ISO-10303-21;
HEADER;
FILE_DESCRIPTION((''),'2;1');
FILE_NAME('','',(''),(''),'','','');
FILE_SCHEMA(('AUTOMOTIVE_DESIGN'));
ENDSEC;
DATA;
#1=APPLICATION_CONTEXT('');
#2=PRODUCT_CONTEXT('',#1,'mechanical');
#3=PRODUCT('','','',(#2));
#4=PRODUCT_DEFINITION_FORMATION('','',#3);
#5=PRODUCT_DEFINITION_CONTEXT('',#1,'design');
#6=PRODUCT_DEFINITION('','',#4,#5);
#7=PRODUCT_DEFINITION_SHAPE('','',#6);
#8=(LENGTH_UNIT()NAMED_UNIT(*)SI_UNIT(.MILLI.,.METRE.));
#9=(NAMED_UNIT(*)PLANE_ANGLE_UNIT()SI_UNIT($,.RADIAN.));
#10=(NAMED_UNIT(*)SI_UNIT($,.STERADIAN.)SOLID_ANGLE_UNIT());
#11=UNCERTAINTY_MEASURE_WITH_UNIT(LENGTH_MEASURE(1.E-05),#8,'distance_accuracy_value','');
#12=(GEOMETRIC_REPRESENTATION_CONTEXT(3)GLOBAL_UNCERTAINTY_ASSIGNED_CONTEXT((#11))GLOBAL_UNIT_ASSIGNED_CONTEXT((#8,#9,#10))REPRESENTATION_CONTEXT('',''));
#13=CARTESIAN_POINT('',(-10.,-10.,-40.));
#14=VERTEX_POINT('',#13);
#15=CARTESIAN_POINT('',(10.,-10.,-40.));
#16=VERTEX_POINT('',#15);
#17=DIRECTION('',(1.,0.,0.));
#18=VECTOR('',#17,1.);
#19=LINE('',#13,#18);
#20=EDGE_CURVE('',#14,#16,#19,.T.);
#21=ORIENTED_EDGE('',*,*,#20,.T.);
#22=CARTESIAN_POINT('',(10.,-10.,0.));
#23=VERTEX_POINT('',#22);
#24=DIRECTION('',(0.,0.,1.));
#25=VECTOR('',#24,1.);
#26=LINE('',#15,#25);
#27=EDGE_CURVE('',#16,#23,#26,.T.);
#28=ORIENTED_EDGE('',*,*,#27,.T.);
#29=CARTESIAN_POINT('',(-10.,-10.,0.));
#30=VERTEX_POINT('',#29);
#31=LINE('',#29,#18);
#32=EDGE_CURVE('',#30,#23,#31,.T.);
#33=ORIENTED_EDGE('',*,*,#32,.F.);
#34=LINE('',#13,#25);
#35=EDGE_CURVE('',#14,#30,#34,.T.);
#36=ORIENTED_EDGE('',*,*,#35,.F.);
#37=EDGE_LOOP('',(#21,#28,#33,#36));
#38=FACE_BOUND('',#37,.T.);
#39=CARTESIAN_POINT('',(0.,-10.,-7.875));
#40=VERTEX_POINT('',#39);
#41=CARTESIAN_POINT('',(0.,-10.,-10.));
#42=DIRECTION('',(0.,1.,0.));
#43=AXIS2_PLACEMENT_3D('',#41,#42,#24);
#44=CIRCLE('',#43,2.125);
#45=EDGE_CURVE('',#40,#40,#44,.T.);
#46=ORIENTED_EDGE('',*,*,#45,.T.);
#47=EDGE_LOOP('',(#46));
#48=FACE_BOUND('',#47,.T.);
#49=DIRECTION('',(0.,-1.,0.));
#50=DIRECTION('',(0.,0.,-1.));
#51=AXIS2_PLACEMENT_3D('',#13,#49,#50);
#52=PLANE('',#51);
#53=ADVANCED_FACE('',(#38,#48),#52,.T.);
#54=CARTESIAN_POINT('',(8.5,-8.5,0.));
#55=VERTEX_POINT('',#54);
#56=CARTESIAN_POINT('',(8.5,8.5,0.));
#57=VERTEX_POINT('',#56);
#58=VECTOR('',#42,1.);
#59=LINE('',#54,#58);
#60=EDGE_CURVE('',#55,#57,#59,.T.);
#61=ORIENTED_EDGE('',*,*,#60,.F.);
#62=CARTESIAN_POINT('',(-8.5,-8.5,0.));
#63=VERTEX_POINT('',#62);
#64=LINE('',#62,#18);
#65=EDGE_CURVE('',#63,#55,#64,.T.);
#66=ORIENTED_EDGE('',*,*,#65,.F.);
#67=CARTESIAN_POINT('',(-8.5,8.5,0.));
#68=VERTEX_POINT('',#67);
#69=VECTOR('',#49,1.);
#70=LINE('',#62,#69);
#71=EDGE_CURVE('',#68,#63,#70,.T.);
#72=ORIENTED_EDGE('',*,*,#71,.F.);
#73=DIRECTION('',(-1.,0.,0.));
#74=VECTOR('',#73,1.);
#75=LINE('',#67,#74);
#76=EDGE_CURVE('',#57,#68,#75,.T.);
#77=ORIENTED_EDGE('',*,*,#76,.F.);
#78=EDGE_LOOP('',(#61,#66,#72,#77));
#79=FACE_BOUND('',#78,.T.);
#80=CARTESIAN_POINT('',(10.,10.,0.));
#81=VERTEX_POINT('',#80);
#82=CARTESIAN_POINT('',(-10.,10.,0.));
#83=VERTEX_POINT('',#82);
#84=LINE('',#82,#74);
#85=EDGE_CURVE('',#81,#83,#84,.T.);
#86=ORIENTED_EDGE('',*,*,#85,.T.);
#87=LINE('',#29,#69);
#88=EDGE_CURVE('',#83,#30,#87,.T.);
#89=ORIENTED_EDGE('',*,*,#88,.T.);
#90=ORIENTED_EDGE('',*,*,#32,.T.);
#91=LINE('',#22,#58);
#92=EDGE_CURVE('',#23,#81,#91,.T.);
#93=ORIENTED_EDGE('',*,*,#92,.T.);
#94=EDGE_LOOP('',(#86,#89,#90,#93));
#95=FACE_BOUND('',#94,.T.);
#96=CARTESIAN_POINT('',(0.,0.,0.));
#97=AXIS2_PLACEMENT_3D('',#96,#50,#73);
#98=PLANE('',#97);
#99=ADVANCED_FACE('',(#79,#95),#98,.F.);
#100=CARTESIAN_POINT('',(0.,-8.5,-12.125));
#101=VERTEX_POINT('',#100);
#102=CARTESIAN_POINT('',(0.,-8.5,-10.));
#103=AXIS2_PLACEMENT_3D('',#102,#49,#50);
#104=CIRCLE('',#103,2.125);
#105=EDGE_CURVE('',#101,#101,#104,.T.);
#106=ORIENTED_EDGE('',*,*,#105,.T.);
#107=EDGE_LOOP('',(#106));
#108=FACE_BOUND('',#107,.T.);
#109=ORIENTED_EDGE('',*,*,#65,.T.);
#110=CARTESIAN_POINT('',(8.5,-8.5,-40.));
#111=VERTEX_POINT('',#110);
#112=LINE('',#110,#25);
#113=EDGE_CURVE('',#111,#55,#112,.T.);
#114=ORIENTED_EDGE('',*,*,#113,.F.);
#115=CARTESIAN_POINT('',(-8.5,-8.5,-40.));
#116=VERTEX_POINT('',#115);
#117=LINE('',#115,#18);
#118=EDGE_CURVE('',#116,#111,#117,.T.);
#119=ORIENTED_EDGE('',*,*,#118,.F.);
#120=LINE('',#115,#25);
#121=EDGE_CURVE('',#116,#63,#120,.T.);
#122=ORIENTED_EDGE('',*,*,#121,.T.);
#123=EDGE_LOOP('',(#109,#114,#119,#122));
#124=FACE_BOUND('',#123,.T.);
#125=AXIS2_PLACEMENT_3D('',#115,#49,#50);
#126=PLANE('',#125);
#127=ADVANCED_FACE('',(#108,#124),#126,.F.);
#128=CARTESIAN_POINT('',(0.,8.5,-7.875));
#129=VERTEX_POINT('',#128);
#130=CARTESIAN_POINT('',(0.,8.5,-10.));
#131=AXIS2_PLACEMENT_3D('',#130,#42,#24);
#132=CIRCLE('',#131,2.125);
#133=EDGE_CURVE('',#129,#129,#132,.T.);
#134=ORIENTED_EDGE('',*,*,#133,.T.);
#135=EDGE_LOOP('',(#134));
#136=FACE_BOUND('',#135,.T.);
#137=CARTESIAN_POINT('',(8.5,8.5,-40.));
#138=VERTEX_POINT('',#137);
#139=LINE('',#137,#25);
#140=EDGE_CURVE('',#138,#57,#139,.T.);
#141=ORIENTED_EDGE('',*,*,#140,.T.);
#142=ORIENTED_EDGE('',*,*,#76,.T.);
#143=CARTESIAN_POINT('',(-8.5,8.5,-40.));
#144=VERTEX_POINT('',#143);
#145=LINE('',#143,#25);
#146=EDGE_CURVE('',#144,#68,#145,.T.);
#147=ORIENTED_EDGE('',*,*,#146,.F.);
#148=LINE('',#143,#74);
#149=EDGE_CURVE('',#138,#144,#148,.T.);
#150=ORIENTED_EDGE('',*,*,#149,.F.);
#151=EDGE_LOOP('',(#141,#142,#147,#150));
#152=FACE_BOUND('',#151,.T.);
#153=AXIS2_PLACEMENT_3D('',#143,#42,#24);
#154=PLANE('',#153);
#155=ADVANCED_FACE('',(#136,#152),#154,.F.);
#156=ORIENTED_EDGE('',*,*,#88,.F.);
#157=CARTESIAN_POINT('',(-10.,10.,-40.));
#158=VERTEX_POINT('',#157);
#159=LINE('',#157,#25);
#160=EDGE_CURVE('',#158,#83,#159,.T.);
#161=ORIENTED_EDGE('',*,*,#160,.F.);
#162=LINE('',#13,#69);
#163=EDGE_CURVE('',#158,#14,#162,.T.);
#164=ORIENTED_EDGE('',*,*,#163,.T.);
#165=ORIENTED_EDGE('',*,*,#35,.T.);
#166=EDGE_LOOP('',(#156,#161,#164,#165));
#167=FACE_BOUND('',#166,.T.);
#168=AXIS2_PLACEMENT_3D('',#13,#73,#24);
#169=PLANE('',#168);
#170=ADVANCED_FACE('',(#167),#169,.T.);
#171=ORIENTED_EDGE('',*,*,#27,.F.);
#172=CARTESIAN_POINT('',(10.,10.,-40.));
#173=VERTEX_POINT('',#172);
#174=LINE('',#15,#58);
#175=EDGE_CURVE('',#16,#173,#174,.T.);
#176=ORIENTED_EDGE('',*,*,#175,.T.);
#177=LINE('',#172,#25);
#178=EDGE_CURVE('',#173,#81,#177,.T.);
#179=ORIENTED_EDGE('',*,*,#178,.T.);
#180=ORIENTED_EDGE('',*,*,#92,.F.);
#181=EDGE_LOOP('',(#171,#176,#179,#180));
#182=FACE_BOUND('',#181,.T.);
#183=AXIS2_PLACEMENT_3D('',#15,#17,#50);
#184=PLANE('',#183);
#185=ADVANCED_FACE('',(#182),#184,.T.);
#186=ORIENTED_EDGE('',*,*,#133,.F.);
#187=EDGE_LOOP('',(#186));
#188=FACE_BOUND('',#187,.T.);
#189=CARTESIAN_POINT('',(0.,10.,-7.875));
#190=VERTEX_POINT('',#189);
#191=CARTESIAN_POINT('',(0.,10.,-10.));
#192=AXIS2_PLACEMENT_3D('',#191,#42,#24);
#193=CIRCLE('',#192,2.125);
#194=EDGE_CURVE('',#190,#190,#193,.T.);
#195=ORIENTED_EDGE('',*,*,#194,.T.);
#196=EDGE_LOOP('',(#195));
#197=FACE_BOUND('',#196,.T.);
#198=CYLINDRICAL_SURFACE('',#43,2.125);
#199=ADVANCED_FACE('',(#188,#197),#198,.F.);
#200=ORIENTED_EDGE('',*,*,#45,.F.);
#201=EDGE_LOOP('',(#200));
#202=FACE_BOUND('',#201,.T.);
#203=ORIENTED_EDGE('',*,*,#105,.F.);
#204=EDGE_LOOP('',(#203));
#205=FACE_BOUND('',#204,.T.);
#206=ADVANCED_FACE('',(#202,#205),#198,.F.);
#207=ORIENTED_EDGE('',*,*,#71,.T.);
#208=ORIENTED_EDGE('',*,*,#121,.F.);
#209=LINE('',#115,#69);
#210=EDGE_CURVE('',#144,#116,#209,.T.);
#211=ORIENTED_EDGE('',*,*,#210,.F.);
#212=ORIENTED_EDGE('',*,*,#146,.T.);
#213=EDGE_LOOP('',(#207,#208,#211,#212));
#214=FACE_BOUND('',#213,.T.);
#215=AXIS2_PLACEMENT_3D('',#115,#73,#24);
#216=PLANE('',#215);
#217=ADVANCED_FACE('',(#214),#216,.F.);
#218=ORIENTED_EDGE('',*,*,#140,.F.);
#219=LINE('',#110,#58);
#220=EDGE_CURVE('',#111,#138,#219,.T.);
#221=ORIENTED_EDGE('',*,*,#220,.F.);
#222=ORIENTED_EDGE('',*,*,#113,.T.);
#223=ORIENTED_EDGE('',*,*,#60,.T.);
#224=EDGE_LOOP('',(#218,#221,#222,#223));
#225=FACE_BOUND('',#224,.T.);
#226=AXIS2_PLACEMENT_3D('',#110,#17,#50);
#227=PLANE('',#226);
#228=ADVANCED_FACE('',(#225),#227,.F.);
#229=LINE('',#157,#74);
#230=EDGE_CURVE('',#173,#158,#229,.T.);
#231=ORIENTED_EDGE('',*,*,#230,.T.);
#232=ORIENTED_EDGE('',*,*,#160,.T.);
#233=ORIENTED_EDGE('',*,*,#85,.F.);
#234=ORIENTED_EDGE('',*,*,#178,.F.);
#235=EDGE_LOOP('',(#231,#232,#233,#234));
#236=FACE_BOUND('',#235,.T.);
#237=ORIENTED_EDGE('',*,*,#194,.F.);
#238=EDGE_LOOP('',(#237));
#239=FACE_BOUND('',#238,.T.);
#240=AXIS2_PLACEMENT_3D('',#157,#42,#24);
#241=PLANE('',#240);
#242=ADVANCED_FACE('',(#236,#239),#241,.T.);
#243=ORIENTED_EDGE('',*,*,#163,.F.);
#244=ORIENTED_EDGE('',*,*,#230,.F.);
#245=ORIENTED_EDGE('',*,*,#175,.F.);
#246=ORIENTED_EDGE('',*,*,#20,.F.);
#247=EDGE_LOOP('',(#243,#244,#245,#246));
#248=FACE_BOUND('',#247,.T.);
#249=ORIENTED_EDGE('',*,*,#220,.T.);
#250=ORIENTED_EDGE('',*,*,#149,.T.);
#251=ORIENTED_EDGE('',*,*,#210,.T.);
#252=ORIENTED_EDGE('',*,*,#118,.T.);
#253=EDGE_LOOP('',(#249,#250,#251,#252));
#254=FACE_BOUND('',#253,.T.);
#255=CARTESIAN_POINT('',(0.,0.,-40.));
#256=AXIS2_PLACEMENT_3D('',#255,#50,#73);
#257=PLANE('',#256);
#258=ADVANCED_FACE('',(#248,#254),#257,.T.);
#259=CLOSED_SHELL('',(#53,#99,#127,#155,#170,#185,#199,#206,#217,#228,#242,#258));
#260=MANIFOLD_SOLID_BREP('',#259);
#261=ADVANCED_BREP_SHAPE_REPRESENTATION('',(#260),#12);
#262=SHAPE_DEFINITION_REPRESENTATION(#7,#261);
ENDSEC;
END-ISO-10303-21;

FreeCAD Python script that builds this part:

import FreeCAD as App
import Part
import Sketcher

V = App.Vector
Q = App.Units.Quantity


def add_polygon(sketch, points):
    """Adds a closed chain of lines whose ends are joined by coincident constraints."""
    first, n = sketch.GeometryCount, len(points)
    for a, b in zip(points, points[1:] + points[:1]):
        sketch.addGeometry(Part.LineSegment(App.Vector(*a, 0), App.Vector(*b, 0)), False)
    for i in range(n):
        sketch.addConstraint(Sketcher.Constraint("Coincident", first + i, 2, first + (i + 1) % n, 1))

doc = App.newDocument("Part")
body = doc.addObject("PartDesign::Body", "Body")

sketch1 = body.newObject("Sketcher::SketchObject", "Sketch")
sketch1.AttachmentSupport = (doc.getObject("XY_Plane"), [""])
sketch1.MapMode = "FlatFace"
add_polygon(sketch1, [(-10, 10), (-10, -10), (10, -10), (10, 10)])
add_polygon(sketch1, [(8, -8), (-8, -8), (-8, 8), (8, 8)])
sketch1.addConstraint([
    Sketcher.Constraint("Vertical", 0),
    Sketcher.Constraint("Horizontal", 1),
    Sketcher.Constraint("Vertical", 2),
    Sketcher.Constraint("Horizontal", 3),
    Sketcher.Constraint("Horizontal", 4),
    Sketcher.Constraint("Vertical", 5),
    Sketcher.Constraint("Horizontal", 6),
    Sketcher.Constraint("Vertical", 7),
    Sketcher.Constraint("Symmetric", 0, 2, 2, 2, -1, 1),
    Sketcher.Constraint("Symmetric", 4, 2, 6, 2, -1, 1),
    Sketcher.Constraint("Equal", 3, 0),
    Sketcher.Constraint("Equal", 6, 5),
    Sketcher.Constraint("DistanceX", 1, 1, 1, 2, Q("20 mm")),
    Sketcher.Constraint("DistanceX", 4, 2, 4, 1, Q("17 mm")),
])
pad1 = body.newObject("PartDesign::Pad", "Pad")
pad1.Profile = sketch1
pad1.Length = 40
pad1.Reversed = True

sketch2 = body.newObject("Sketcher::SketchObject", "Sketch001")
sketch2.AttachmentSupport = (doc.getObject("XZ_Plane"), [""])
sketch2.MapMode = "FlatFace"
sketch2.AttachmentOffset = App.Placement(V(0, 0, -10), App.Rotation())
sketch2.addGeometry([
    Part.Circle(V(0, -10, 0), V(0, 0, 1), 2.1),
    Part.Circle(V(0, -80, 0), V(0, 0, 1), 2.1),
    Part.Circle(V(0, -150, 0), V(0, 0, 1), 2.1),
], False)
sketch2.addConstraint([
    Sketcher.Constraint("Equal", 0, 1),
    Sketcher.Constraint("Equal", 1, 2),
    Sketcher.Constraint("PointOnObject", 0, 3, -2),
    Sketcher.Constraint("PointOnObject", 1, 3, -2),
    Sketcher.Constraint("PointOnObject", 2, 3, -2),
    Sketcher.Constraint("Diameter", 0, Q("4.25 mm")),
    Sketcher.Constraint("DistanceY", 0, 3, -1, 1, Q("10 mm")),
    Sketcher.Constraint("DistanceY", 1, 3, -1, 1, Q("80 mm")),
    Sketcher.Constraint("DistanceY", 2, 3, -1, 1, Q("150 mm")),
])
pocket1 = body.newObject("PartDesign::Pocket", "Pocket")
pocket1.Profile = sketch2
pocket1.Type = "ThroughAll"
pocket1.Reversed = True

doc.recompute()
